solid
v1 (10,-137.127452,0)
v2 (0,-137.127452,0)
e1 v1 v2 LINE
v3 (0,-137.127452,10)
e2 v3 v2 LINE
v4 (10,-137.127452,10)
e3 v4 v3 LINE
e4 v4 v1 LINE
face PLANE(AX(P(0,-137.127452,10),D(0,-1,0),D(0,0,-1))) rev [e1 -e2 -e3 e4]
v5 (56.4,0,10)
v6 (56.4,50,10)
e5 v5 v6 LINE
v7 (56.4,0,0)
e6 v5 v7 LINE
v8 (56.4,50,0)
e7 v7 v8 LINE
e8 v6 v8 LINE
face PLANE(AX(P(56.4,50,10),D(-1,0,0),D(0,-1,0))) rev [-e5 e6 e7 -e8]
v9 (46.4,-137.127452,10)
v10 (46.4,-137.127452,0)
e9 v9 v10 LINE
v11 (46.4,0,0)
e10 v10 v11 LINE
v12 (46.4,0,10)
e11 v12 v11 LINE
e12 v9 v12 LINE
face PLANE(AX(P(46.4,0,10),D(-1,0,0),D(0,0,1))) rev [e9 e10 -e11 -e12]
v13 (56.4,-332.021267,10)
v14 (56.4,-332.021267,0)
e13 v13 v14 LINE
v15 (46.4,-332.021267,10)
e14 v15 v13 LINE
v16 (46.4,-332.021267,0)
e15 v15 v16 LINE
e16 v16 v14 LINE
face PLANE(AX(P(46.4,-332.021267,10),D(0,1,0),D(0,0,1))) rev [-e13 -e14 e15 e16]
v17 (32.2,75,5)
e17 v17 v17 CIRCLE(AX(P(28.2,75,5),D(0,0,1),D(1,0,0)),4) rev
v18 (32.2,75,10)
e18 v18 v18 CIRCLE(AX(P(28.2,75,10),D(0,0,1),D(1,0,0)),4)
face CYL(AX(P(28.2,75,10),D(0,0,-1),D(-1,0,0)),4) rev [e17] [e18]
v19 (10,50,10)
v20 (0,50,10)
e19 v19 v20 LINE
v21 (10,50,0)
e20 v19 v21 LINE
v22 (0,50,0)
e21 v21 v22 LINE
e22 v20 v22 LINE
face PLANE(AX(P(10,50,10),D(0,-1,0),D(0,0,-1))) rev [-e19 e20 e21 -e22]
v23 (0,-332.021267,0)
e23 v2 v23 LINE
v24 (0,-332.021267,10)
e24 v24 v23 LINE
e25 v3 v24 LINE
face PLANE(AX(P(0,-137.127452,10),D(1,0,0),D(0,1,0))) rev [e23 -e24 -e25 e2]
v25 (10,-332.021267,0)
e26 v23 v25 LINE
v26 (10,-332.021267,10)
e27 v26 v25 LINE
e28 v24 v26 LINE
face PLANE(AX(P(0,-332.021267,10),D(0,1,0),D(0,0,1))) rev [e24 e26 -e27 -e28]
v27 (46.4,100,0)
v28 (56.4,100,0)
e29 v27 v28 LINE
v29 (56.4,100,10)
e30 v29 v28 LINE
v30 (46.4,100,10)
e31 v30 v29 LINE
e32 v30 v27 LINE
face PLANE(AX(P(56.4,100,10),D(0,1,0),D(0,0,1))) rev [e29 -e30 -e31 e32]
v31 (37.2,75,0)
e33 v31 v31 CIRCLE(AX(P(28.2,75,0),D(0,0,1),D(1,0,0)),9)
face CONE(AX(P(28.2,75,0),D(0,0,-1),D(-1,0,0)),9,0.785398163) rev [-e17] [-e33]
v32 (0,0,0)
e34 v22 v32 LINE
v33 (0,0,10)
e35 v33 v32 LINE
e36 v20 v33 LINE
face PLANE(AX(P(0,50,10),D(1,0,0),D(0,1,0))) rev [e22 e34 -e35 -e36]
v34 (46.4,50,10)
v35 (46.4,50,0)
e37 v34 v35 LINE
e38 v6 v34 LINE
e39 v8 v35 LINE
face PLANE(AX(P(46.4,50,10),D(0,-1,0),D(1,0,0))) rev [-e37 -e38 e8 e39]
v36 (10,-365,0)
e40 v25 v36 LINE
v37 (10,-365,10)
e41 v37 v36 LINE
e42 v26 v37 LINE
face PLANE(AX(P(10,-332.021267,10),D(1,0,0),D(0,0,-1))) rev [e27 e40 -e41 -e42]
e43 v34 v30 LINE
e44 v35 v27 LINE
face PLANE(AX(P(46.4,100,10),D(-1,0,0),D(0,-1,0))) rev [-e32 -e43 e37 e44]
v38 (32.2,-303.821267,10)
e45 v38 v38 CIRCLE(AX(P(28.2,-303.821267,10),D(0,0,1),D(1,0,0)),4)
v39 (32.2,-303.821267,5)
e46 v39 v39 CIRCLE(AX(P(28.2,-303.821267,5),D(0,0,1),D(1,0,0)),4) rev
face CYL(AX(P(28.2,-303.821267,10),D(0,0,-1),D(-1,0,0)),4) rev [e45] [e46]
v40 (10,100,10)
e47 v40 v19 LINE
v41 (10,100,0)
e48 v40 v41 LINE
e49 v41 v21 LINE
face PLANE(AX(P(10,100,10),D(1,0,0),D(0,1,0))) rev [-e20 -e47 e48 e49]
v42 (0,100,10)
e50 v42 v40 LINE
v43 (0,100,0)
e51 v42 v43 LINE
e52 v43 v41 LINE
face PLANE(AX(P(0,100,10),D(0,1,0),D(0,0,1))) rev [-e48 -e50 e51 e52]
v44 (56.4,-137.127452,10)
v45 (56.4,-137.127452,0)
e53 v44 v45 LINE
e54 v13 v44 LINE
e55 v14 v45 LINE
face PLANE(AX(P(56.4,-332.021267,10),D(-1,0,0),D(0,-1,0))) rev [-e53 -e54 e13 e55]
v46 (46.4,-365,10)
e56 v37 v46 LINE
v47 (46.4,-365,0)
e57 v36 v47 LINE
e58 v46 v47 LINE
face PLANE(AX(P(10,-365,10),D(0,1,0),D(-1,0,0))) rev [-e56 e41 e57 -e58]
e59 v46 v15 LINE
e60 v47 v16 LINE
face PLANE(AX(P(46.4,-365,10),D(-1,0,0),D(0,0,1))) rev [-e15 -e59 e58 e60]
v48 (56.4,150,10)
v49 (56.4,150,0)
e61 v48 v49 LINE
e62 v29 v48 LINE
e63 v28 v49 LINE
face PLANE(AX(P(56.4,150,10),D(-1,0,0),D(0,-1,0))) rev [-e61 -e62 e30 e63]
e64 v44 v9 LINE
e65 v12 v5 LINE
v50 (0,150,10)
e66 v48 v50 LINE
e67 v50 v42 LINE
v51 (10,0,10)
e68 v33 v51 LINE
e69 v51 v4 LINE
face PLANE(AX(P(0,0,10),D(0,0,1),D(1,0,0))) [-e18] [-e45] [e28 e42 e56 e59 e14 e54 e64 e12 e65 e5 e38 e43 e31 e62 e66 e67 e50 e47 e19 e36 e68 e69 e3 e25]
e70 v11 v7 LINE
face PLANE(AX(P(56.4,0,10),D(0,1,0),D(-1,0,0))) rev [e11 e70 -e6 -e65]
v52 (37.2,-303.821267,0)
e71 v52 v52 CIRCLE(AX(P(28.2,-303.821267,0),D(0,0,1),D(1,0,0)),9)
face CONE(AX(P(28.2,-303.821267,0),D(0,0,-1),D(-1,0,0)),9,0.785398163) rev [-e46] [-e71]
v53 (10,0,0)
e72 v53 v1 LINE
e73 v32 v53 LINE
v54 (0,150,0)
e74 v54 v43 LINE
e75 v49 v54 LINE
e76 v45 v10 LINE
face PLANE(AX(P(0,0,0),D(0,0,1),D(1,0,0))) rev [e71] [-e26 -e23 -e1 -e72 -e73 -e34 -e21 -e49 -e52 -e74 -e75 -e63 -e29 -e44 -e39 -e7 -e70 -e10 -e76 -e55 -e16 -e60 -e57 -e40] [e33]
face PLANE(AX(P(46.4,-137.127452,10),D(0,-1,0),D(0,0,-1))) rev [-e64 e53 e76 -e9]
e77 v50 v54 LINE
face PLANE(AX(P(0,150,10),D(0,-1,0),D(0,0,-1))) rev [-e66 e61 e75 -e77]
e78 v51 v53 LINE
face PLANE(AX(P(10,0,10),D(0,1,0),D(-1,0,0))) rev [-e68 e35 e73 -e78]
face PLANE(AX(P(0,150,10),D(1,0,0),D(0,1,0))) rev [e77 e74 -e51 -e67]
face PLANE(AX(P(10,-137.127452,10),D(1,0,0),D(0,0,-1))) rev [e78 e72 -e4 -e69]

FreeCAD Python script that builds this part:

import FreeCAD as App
import Part
import Sketcher


def edges_at(feature, points):
    """Names of the edges that pass closest to the given points."""
    edges = feature.Shape.Edges
    near = lambda p: min(range(len(edges)), key=lambda i: edges[i].distToShape(Part.Vertex(*p))[0])
    return sorted({f"Edge{near(p) + 1}" for p in points})

doc = App.newDocument("Part")
body = doc.addObject("PartDesign::Body", "Body")

sketch1 = doc.addObject("Sketcher::SketchObject", "Sketch")
body.addObject(sketch1)
sketch1.AttachmentSupport = (doc.XY_Plane, [""])
sketch1.MapMode = "FlatFace"
sketch1.addGeometry([
    Part.LineSegment(App.Vector(56.4, 150, 0), App.Vector(0, 150, 0)),
    Part.LineSegment(App.Vector(0, 150, 0), App.Vector(0, 100, 0)),
    Part.LineSegment(App.Vector(0, 100, 0), App.Vector(10, 100, 0)),
    Part.LineSegment(App.Vector(10, 100, 0), App.Vector(10, 50, 0)),
    Part.LineSegment(App.Vector(10, 50, 0), App.Vector(0, 50, 0)),
    Part.LineSegment(App.Vector(0, 50, 0), App.Vector(0, 0, 0)),
    Part.LineSegment(App.Vector(0, 0, 0), App.Vector(10, 0, 0)),
    Part.LineSegment(App.Vector(10, 0, 0), App.Vector(10, -137.1, 0)),
    Part.LineSegment(App.Vector(10, -137.1, 0), App.Vector(0, -137.1, 0)),
    Part.LineSegment(App.Vector(0, -137.1, 0), App.Vector(0, -332, 0)),
    Part.LineSegment(App.Vector(0, -332, 0), App.Vector(10, -332, 0)),
    Part.LineSegment(App.Vector(10, -332, 0), App.Vector(10, -365, 0)),
    Part.LineSegment(App.Vector(10, -365, 0), App.Vector(46.4, -365, 0)),
    Part.LineSegment(App.Vector(46.4, -365, 0), App.Vector(46.4, -332, 0)),
    Part.LineSegment(App.Vector(46.4, -332, 0), App.Vector(56.4, -332, 0)),
    Part.LineSegment(App.Vector(56.4, -332, 0), App.Vector(56.4, -137.1, 0)),
    Part.LineSegment(App.Vector(56.4, -137.1, 0), App.Vector(46.4, -137.1, 0)),
    Part.LineSegment(App.Vector(46.4, -137.1, 0), App.Vector(46.4, 0, 0)),
    Part.LineSegment(App.Vector(46.4, 0, 0), App.Vector(56.4, 0, 0)),
    Part.LineSegment(App.Vector(56.4, 0, 0), App.Vector(56.4, 50, 0)),
    Part.LineSegment(App.Vector(56.4, 50, 0), App.Vector(46.4, 50, 0)),
    Part.LineSegment(App.Vector(46.4, 50, 0), App.Vector(46.4, 100, 0)),
    Part.LineSegment(App.Vector(46.4, 100, 0), App.Vector(56.4, 100, 0)),
    Part.LineSegment(App.Vector(56.4, 100, 0), App.Vector(56.4, 150, 0)),
    Part.Circle(App.Vector(28.2, -303.8, 0), App.Vector(0, 0, 1), 4),
    Part.Circle(App.Vector(28.2, 75, 0), App.Vector(0, 0, 1), 4),
], False)
sketch1.addConstraint([
    Sketcher.Constraint("Coincident", 0, 2, 1, 1),
    Sketcher.Constraint("Coincident", 1, 2, 2, 1),
    Sketcher.Constraint("Coincident", 2, 2, 3, 1),
    Sketcher.Constraint("Coincident", 3, 2, 4, 1),
    Sketcher.Constraint("Coincident", 4, 2, 5, 1),
    Sketcher.Constraint("Coincident", 5, 2, 6, 1),
    Sketcher.Constraint("Coincident", 6, 2, 7, 1),
    Sketcher.Constraint("Coincident", 7, 2, 8, 1),
    Sketcher.Constraint("Coincident", 8, 2, 9, 1),
    Sketcher.Constraint("Coincident", 9, 2, 10, 1),
    Sketcher.Constraint("Coincident", 10, 2, 11, 1),
    Sketcher.Constraint("Coincident", 11, 2, 12, 1),
    Sketcher.Constraint("Coincident", 12, 2, 13, 1),
    Sketcher.Constraint("Coincident", 13, 2, 14, 1),
    Sketcher.Constraint("Coincident", 14, 2, 15, 1),
    Sketcher.Constraint("Coincident", 15, 2, 16, 1),
    Sketcher.Constraint("Coincident", 16, 2, 17, 1),
    Sketcher.Constraint("Coincident", 17, 2, 18, 1),
    Sketcher.Constraint("Coincident", 18, 2, 19, 1),
    Sketcher.Constraint("Coincident", 19, 2, 20, 1),
    Sketcher.Constraint("Coincident", 20, 2, 21, 1),
    Sketcher.Constraint("Coincident", 21, 2, 22, 1),
    Sketcher.Constraint("Coincident", 22, 2, 23, 1),
    Sketcher.Constraint("Coincident", 23, 2, 0, 1),
    Sketcher.Constraint("Horizontal", 0),
    Sketcher.Constraint("Vertical", 1),
    Sketcher.Constraint("Horizontal", 2),
    Sketcher.Constraint("Vertical", 3),
    Sketcher.Constraint("Horizontal", 4),
    Sketcher.Constraint("Vertical", 5),
    Sketcher.Constraint("Horizontal", 6),
    Sketcher.Constraint("Vertical", 7),
    Sketcher.Constraint("Horizontal", 8),
    Sketcher.Constraint("Vertical", 9),
    Sketcher.Constraint("Horizontal", 10),
    Sketcher.Constraint("Vertical", 11),
    Sketcher.Constraint("Horizontal", 12),
    Sketcher.Constraint("Vertical", 13),
    Sketcher.Constraint("Horizontal", 14),
    Sketcher.Constraint("Vertical", 15),
    Sketcher.Constraint("Horizontal", 16),
    Sketcher.Constraint("Vertical", 17),
    Sketcher.Constraint("Horizontal", 18),
    Sketcher.Constraint("Vertical", 19),
    Sketcher.Constraint("Horizontal", 20),
    Sketcher.Constraint("Vertical", 21),
    Sketcher.Constraint("Horizontal", 22),
    Sketcher.Constraint("Vertical", 23),
    Sketcher.Constraint("Coincident", 5, 2, -1, 1),
    Sketcher.Constraint("Equal", 24, 25),
    Sketcher.Constraint("PointOnObject", 0, 2, -2),
    Sketcher.Constraint("PointOnObject", 8, 2, -2),
    Sketcher.Constraint("PointOnObject", 17, 2, -1),
    Sketcher.Constraint("Horizontal", 10, 2, 13, 2),
    Sketcher.Constraint("Horizontal", 8, 2, 15, 2),
    Sketcher.Constraint("Horizontal", 4, 2, 19, 2),
    Sketcher.Constraint("Horizontal", 2, 2, 21, 2),
    Sketcher.Constraint("Vertical", 24, 3, 25, 3),
    Sketcher.Constraint("Vertical", 3, 2, 6, 2),
    Sketcher.Constraint("Vertical", 7, 2, 10, 2),
    Sketcher.Constraint("Vertical", 13, 2, 16, 2),
    Sketcher.Constraint("Vertical", 15, 2, 18, 2),
    Sketcher.Constraint("Vertical", 17, 2, 20, 2),
    Sketcher.Constraint("Vertical", 19, 2, 22, 2),
    Sketcher.Constraint("Equal", 10, 14),
    Sketcher.Constraint("Equal", 1, 3),
    Sketcher.Constraint("Equal", 3, 5),
    Sketcher.Constraint("Diameter", 24, 8.0),
    Sketcher.Constraint("DistanceX", 2, 1, 2, 2, 10.0),
    Sketcher.Constraint("DistanceY", 1, 2, 1, 1, 50.0),
    Sketcher.Constraint("DistanceX", 0, 2, 0, 1, 56.4),
    Sketcher.Constraint("DistanceY", -1, 1, 25, 3, 75.0),
    Sketcher.Constraint("DistanceY", 11, 2, -1, 1, 365.0),
    Sketcher.Constraint("DistanceX", -1, 1, 24, 3, 28.2),
    Sketcher.Constraint("DistanceY", 9, 2, 24, 3, 28.2),
    Sketcher.Constraint("DistanceY", 7, 2, 7, 1, 137.127452),
    Sketcher.Constraint("DistanceY", 9, 2, 9, 1, 194.893815),
])
pad1 = doc.addObject("PartDesign::Pad", "Pad")
body.addObject(pad1)
pad1.Profile = sketch1
pad1.Length = 10
doc.recompute()

chamfer = doc.addObject("PartDesign::Chamfer", "Chamfer")
body.addObject(chamfer)
chamfer.Base = (pad1, edges_at(pad1, [(24.2, 75, 0), (24.2, -303.821, 0)]))
chamfer.Size = 5

doc.recompute()
